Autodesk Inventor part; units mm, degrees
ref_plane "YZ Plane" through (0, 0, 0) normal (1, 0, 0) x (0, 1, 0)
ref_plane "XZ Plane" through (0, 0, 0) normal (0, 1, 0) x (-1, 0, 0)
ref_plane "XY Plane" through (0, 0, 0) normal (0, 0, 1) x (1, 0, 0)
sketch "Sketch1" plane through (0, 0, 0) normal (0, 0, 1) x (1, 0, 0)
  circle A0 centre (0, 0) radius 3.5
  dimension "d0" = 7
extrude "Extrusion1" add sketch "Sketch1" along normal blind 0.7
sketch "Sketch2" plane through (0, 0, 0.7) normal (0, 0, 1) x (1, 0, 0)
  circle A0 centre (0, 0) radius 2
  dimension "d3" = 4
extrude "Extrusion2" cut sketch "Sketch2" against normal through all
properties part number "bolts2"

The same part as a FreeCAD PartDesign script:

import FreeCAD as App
import Part
import Sketcher
from FreeCAD import Vector

doc = App.newDocument("Part")
params = doc.addObject("Spreadsheet::Sheet", "Params")
for row, (alias, value) in enumerate([
    ("sketch1_diameter", "7 mm"),
    ("pad1_length", "0.7 mm"),
    ("sketch2_diameter", "4 mm"),
], start=1):
    params.set(f"A{row}", alias)
    params.set(f"B{row}", "=" + value)
    params.setAlias(f"B{row}", alias)

body = doc.addObject("PartDesign::Body", "Body")

sketch1 = doc.addObject("Sketcher::SketchObject", "Sketch")
body.addObject(sketch1)
sketch1.AttachmentSupport = (doc.XY_Plane, [""])
sketch1.MapMode = "FlatFace"
sketch1.addGeometry(Part.Circle(Vector(0, 0, 0), Vector(0, 0, 1), 3.5), False)
sketch1.addConstraint(Sketcher.Constraint("Coincident", 0, 3, -1, 1))
sketch1.addConstraint(Sketcher.Constraint("Diameter", 0, 7.0))
sketch1.setExpression("Constraints[1]", "Params.sketch1_diameter")
pad1 = doc.addObject("PartDesign::Pad", "Pad")
body.addObject(pad1)
pad1.Profile = sketch1
pad1.setExpression("Length", "Params.pad1_length")

sketch2 = doc.addObject("Sketcher::SketchObject", "Sketch001")
body.addObject(sketch2)
sketch2.AttachmentSupport = (doc.XY_Plane, [""])
sketch2.MapMode = "FlatFace"
sketch2.AttachmentOffset = App.Placement(Vector(0, 0, 0.7), App.Rotation())
sketch2.addGeometry(Part.Circle(Vector(0, 0, 0), Vector(0, 0, 1), 2), False)
sketch2.addConstraint(Sketcher.Constraint("Coincident", 0, 3, -1, 1))
sketch2.addConstraint(Sketcher.Constraint("Diameter", 0, 4.0))
sketch2.setExpression("Constraints[1]", "Params.sketch2_diameter")
pocket1 = doc.addObject("PartDesign::Pocket", "Pocket")
body.addObject(pocket1)
pocket1.Profile = sketch2
pocket1.Type = "ThroughAll"

doc.recompute()
